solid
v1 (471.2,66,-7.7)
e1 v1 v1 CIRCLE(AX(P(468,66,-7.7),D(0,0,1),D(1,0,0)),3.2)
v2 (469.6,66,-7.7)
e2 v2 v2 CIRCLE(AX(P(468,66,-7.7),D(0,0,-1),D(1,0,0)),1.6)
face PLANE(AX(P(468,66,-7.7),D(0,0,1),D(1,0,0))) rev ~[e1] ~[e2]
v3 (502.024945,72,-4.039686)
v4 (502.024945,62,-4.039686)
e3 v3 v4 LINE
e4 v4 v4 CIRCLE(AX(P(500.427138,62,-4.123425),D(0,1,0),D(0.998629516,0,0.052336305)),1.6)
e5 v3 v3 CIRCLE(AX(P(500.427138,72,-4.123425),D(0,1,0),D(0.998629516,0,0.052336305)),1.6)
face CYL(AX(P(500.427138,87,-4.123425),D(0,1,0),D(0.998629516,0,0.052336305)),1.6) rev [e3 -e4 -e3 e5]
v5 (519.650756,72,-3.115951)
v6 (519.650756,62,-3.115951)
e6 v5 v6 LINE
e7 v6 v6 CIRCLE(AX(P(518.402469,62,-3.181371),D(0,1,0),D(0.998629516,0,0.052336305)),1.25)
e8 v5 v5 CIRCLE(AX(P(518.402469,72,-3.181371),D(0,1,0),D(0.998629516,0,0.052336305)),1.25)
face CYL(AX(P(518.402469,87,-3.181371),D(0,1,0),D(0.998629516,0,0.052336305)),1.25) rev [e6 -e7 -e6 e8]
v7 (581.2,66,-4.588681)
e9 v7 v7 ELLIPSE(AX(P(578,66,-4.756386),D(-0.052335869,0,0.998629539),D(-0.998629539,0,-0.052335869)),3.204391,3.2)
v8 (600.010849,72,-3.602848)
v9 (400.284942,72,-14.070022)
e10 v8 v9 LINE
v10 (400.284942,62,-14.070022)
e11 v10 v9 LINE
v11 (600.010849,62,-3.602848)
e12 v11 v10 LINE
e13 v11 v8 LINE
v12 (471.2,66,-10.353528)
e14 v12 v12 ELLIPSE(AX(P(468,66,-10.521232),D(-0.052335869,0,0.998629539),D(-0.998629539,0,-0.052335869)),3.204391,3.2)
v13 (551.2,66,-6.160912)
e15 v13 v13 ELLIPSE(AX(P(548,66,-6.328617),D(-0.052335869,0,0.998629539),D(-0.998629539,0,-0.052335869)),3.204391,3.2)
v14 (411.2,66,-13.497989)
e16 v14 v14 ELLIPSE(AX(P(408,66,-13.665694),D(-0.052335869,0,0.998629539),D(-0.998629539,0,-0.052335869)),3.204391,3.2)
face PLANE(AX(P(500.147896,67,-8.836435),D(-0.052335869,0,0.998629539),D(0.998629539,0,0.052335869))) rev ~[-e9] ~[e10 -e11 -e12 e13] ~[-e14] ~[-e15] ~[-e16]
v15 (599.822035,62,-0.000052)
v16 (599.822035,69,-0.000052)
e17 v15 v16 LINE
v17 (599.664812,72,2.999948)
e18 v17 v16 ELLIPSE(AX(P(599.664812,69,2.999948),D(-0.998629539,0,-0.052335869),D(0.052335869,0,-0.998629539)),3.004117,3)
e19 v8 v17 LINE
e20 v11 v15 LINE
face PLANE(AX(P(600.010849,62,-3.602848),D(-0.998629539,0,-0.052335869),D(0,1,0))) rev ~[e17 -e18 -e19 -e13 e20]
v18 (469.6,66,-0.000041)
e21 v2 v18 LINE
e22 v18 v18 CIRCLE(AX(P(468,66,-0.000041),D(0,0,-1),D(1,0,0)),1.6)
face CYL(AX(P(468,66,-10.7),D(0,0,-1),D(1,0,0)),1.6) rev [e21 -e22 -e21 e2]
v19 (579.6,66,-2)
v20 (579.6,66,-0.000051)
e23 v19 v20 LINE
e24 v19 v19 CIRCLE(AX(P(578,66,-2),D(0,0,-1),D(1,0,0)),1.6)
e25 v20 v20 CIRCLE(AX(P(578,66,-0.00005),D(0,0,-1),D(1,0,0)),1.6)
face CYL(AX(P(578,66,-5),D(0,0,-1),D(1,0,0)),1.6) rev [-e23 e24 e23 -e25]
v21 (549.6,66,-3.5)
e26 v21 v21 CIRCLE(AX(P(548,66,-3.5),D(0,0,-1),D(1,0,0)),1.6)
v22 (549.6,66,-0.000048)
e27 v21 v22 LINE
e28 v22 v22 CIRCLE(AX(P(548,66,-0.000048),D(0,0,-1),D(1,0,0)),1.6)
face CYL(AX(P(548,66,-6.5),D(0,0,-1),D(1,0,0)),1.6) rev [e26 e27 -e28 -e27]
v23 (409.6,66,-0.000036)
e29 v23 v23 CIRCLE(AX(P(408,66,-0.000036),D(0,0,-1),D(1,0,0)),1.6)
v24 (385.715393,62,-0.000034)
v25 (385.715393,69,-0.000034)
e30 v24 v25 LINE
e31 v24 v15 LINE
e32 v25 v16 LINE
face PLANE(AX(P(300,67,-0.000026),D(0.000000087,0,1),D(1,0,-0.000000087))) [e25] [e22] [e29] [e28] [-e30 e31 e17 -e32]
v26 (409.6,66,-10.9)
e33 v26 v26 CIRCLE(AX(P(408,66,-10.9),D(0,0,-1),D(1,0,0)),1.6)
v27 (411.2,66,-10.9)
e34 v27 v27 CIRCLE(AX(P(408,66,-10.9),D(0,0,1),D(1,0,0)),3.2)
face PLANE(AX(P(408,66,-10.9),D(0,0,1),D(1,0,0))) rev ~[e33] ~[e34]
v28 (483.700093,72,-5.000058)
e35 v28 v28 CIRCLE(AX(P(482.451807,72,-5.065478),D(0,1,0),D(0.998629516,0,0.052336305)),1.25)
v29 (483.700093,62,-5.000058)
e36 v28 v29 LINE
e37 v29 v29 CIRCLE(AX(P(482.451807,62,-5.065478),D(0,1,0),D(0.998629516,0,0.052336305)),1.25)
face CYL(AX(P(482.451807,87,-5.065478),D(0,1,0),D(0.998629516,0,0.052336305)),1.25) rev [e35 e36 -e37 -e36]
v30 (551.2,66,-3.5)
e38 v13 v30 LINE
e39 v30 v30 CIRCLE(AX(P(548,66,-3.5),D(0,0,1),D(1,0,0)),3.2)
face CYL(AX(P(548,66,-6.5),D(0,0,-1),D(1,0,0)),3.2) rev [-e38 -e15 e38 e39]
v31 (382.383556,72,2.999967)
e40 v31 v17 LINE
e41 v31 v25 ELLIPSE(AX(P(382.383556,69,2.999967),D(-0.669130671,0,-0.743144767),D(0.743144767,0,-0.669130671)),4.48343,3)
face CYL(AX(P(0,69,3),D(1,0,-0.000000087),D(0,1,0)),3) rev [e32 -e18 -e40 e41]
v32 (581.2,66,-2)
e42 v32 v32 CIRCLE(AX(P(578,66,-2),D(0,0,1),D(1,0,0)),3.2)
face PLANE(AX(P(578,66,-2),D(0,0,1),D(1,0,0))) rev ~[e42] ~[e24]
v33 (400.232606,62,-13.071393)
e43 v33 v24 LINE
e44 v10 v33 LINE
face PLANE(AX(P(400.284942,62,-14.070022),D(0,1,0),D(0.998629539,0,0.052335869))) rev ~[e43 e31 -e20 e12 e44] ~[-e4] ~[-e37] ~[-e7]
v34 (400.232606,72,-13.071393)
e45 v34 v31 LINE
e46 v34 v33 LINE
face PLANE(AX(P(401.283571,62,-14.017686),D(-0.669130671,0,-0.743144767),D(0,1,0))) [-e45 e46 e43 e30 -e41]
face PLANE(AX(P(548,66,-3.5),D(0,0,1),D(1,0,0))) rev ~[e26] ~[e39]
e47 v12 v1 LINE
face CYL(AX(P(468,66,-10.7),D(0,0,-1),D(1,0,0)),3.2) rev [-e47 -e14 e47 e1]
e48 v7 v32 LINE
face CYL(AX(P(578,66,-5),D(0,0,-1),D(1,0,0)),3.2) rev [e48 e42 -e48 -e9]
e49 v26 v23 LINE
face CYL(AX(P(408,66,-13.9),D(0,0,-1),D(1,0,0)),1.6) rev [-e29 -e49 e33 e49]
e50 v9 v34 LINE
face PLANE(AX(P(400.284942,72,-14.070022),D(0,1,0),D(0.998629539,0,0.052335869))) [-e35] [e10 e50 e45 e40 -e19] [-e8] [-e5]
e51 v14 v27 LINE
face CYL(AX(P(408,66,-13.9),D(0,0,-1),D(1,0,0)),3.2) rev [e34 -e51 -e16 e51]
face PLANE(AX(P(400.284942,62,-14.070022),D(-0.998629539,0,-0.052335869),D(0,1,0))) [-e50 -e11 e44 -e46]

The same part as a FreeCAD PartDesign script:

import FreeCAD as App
import Part
import Sketcher
from FreeCAD import Vector
Q = App.Units.Quantity


def edges_at(feature, points):
    """Names of the edges that pass closest to the given points."""
    edges = feature.Shape.Edges
    near = lambda p: min(range(len(edges)), key=lambda i: edges[i].distToShape(Part.Vertex(*p))[0])
    return sorted({f"Edge{near(p) + 1}" for p in points})

doc = App.newDocument("Part")
body = doc.addObject("PartDesign::Body", "Body")

# Sketch on XZ plane
sketch1 = body.newObject("Sketcher::SketchObject", "Sketch")
sketch1.AttachmentSupport = (doc.getObject("XZ_Plane"), [""])
sketch1.MapMode = "FlatFace"
sketch1.addGeometry(Part.Circle(Vector(418, 0, 0), Vector(0, 0, 1), 1.6), False)
sketch1.addConstraint([
    Sketcher.Constraint("PointOnObject", 0, 3, -1),
    Sketcher.Constraint("Diameter", 0, Q("3.2 mm")),
    Sketcher.Constraint("DistanceX", -1, 1, 0, 3, Q("418 mm")),
])
pad1 = body.newObject("PartDesign::Pad", "Pad")
pad1.Profile = sketch1
pad1.Length = 100
body2 = doc.addObject("PartDesign::Body", "Body001")

# Sketch on XZ plane
sketch2 = body2.newObject("Sketcher::SketchObject", "Sketch001")
sketch2.AttachmentSupport = (doc.getObject("XZ_Plane001"), [""])
sketch2.MapMode = "FlatFace"
sketch2.addGeometry(Part.Circle(Vector(436, 0, 0), Vector(0, 0, 1), 1.25), False)
sketch2.addConstraint([
    Sketcher.Constraint("PointOnObject", 0, 3, -1),
    Sketcher.Constraint("Diameter", 0, Q("2.5 mm")),
    Sketcher.Constraint("DistanceX", -1, 1, 0, 3, Q("436 mm")),
])
pad2 = body2.newObject("PartDesign::Pad", "Pad001")
pad2.Profile = sketch2
pad2.Length = 100
body3 = doc.addObject("PartDesign::Body", "Body002")
body3.AllowCompound = True

# Sketch on XZ plane
sketch3 = body3.newObject("Sketcher::SketchObject", "Sketch002")
sketch3.AttachmentSupport = (doc.getObject("XZ_Plane002"), [""])
sketch3.MapMode = "FlatFace"
sketch3.addGeometry(Part.Circle(Vector(400, 0, 0), Vector(0, 0, 1), 1.25), False)
sketch3.addConstraint([
    Sketcher.Constraint("PointOnObject", 0, 3, -1),
    Sketcher.Constraint("Diameter", 0, Q("2.5 mm")),
    Sketcher.Constraint("DistanceX", -1, 1, 0, 3, Q("400 mm")),
])
pad3 = body3.newObject("PartDesign::Pad", "Pad002")
pad3.Profile = sketch3
pad3.Length = 100
doc.recompute()

boolean = body3.newObject("PartDesign::Boolean", "Boolean")
boolean.Type = "Fuse"
boolean.addObjects([body])
doc.recompute()

boolean2 = body3.newObject("PartDesign::Boolean", "Boolean001")
boolean2.Type = "Fuse"
boolean2.addObjects([body2])
body4 = doc.addObject("PartDesign::Body", "Body003")
body4.AllowCompound = True
doc.recompute()

body3.Placement = App.Placement(Vector(83, 77, -26), App.Rotation(Vector(0, -1, 0), 3.00002))
boolean3 = body4.newObject("PartDesign::Boolean", "Boolean002")
boolean3.Type = "Fuse"
boolean3.addObjects([body3])
body5 = doc.addObject("PartDesign::Body", "Body004")

# Sketch on XY plane
sketch4 = body5.newObject("Sketcher::SketchObject", "Sketch003")
sketch4.AttachmentSupport = (doc.getObject("XY_Plane004"), [""])
sketch4.MapMode = "FlatFace"
sketch4.AttachmentOffset = App.Placement(Vector(0, 0, -35), App.Rotation())
sketch4.addGeometry(Part.Circle(Vector(578, 6, 0), Vector(0, 0, 1), 3.2), False)
sketch4.addConstraint([
    Sketcher.Constraint("Diameter", 0, Q("6.4 mm")),
    Sketcher.Constraint("DistanceX", -1, 1, 0, 3, Q("578 mm")),
    Sketcher.Constraint("DistanceY", -1, 1, 0, 3, Q("6 mm")),
])
pad4 = body5.newObject("PartDesign::Pad", "Pad003")
pad4.Profile = sketch4
pad4.Length = 3
body6 = doc.addObject("PartDesign::Body", "Body005")

# Sketch on XY plane
sketch5 = body6.newObject("Sketcher::SketchObject", "Sketch004")
sketch5.AttachmentSupport = (doc.getObject("XY_Plane005"), [""])
sketch5.MapMode = "FlatFace"
sketch5.AttachmentOffset = App.Placement(Vector(0, 0, -35), App.Rotation())
sketch5.addGeometry(Part.Circle(Vector(578, 6, 0), Vector(0, 0, 1), 1.6), False)
sketch5.addConstraint([
    Sketcher.Constraint("Diameter", 0, Q("3.2 mm")),
    Sketcher.Constraint("DistanceX", -1, 1, 0, 3, Q("578 mm")),
    Sketcher.Constraint("DistanceY", -1, 1, 0, 3, Q("6 mm")),
])
pad5 = body6.newObject("PartDesign::Pad", "Pad004")
pad5.Profile = sketch5
pad5.Length = 30
doc.recompute()

boolean4 = body6.newObject("PartDesign::Boolean", "Boolean003")
boolean4.Type = "Fuse"
boolean4.addObjects([body5])
body7 = doc.addObject("PartDesign::Body", "Body006")
doc.recompute()

body6.Placement = App.Placement(Vector(-170, 50, 21.1), App.Rotation(Vector(0, 0, 1), 0))
boolean5 = body7.newObject("PartDesign::Boolean", "Boolean004")
boolean5.Type = "Fuse"
boolean5.addObjects([body6])
body8 = doc.addObject("PartDesign::Body", "Body007")

# Sketch on XY plane
sketch6 = body8.newObject("Sketcher::SketchObject", "Sketch005")
sketch6.AttachmentSupport = (doc.getObject("XY_Plane007"), [""])
sketch6.MapMode = "FlatFace"
sketch6.AttachmentOffset = App.Placement(Vector(0, 0, -35), App.Rotation())
sketch6.addGeometry(Part.Circle(Vector(578, 6, 0), Vector(0, 0, 1), 3.2), False)
sketch6.addConstraint([
    Sketcher.Constraint("Diameter", 0, Q("6.4 mm")),
    Sketcher.Constraint("DistanceX", -1, 1, 0, 3, Q("578 mm")),
    Sketcher.Constraint("DistanceY", -1, 1, 0, 3, Q("6 mm")),
])
pad6 = body8.newObject("PartDesign::Pad", "Pad005")
pad6.Profile = sketch6
pad6.Length = 3
body9 = doc.addObject("PartDesign::Body", "Body008")

# Sketch on XY plane
sketch7 = body9.newObject("Sketcher::SketchObject", "Sketch006")
sketch7.AttachmentSupport = (doc.getObject("XY_Plane008"), [""])
sketch7.MapMode = "FlatFace"
sketch7.AttachmentOffset = App.Placement(Vector(0, 0, -35), App.Rotation())
sketch7.addGeometry(Part.Circle(Vector(578, 6, 0), Vector(0, 0, 1), 1.6), False)
sketch7.addConstraint([
    Sketcher.Constraint("Diameter", 0, Q("3.2 mm")),
    Sketcher.Constraint("DistanceX", -1, 1, 0, 3, Q("578 mm")),
    Sketcher.Constraint("DistanceY", -1, 1, 0, 3, Q("6 mm")),
])
pad7 = body9.newObject("PartDesign::Pad", "Pad006")
pad7.Profile = sketch7
pad7.Length = 30
doc.recompute()

boolean6 = body9.newObject("PartDesign::Boolean", "Boolean005")
boolean6.Type = "Fuse"
boolean6.addObjects([body8])
body10 = doc.addObject("PartDesign::Body", "Body009")
doc.recompute()

body9.Placement = App.Placement(Vector(-110, 50, 24.3), App.Rotation(Vector(0, 0, 1), 0))
boolean7 = body10.newObject("PartDesign::Boolean", "Boolean006")
boolean7.Type = "Fuse"
boolean7.addObjects([body9])
body11 = doc.addObject("PartDesign::Body", "Body010")

# Sketch on XY plane
sketch8 = body11.newObject("Sketcher::SketchObject", "Sketch007")
sketch8.AttachmentSupport = (doc.getObject("XY_Plane010"), [""])
sketch8.MapMode = "FlatFace"
sketch8.AttachmentOffset = App.Placement(Vector(0, 0, -35), App.Rotation())
sketch8.addGeometry(Part.Circle(Vector(578, 6, 0), Vector(0, 0, 1), 3.2), False)
sketch8.addConstraint([
    Sketcher.Constraint("Diameter", 0, Q("6.4 mm")),
    Sketcher.Constraint("DistanceX", -1, 1, 0, 3, Q("578 mm")),
    Sketcher.Constraint("DistanceY", -1, 1, 0, 3, Q("6 mm")),
])
pad8 = body11.newObject("PartDesign::Pad", "Pad007")
pad8.Profile = sketch8
pad8.Length = 3
body12 = doc.addObject("PartDesign::Body", "Body011")

# Sketch on XY plane
sketch9 = body12.newObject("Sketcher::SketchObject", "Sketch008")
sketch9.AttachmentSupport = (doc.getObject("XY_Plane011"), [""])
sketch9.MapMode = "FlatFace"
sketch9.AttachmentOffset = App.Placement(Vector(0, 0, -35), App.Rotation())
sketch9.addGeometry(Part.Circle(Vector(578, 6, 0), Vector(0, 0, 1), 1.6), False)
sketch9.addConstraint([
    Sketcher.Constraint("Diameter", 0, Q("3.2 mm")),
    Sketcher.Constraint("DistanceX", -1, 1, 0, 3, Q("578 mm")),
    Sketcher.Constraint("DistanceY", -1, 1, 0, 3, Q("6 mm")),
])
pad9 = body12.newObject("PartDesign::Pad", "Pad008")
pad9.Profile = sketch9
pad9.Length = 30
doc.recompute()

boolean8 = body12.newObject("PartDesign::Boolean", "Boolean007")
boolean8.Type = "Fuse"
boolean8.addObjects([body11])
body13 = doc.addObject("PartDesign::Body", "Body012")
doc.recompute()

body12.Placement = App.Placement(Vector(-30, 50, 28.5), App.Rotation(Vector(0, 0, 1), 0))
boolean9 = body13.newObject("PartDesign::Boolean", "Boolean008")
boolean9.Type = "Fuse"
boolean9.addObjects([body12])
body14 = doc.addObject("PartDesign::Body", "Body013")

# Sketch on XY plane
sketch10 = body14.newObject("Sketcher::SketchObject", "Sketch009")
sketch10.AttachmentSupport = (doc.getObject("XY_Plane013"), [""])
sketch10.MapMode = "FlatFace"
sketch10.AttachmentOffset = App.Placement(Vector(0, 0, -35), App.Rotation())
sketch10.addGeometry(Part.Circle(Vector(578, 6, 0), Vector(0, 0, 1), 3.2), False)
sketch10.addConstraint([
    Sketcher.Constraint("Diameter", 0, Q("6.4 mm")),
    Sketcher.Constraint("DistanceX", -1, 1, 0, 3, Q("578 mm")),
    Sketcher.Constraint("DistanceY", -1, 1, 0, 3, Q("6 mm")),
])
pad10 = body14.newObject("PartDesign::Pad", "Pad009")
pad10.Profile = sketch10
pad10.Length = 3
body15 = doc.addObject("PartDesign::Body", "Body014")

# Sketch on XY plane
sketch11 = body15.newObject("Sketcher::SketchObject", "Sketch010")
sketch11.AttachmentSupport = (doc.getObject("XY_Plane014"), [""])
sketch11.MapMode = "FlatFace"
sketch11.AttachmentOffset = App.Placement(Vector(0, 0, -35), App.Rotation())
sketch11.addGeometry(Part.Circle(Vector(578, 6, 0), Vector(0, 0, 1), 1.6), False)
sketch11.addConstraint([
    Sketcher.Constraint("Diameter", 0, Q("3.2 mm")),
    Sketcher.Constraint("DistanceX", -1, 1, 0, 3, Q("578 mm")),
    Sketcher.Constraint("DistanceY", -1, 1, 0, 3, Q("6 mm")),
])
pad11 = body15.newObject("PartDesign::Pad", "Pad010")
pad11.Profile = sketch11
pad11.Length = 30
doc.recompute()

boolean10 = body15.newObject("PartDesign::Boolean", "Boolean009")
boolean10.Type = "Fuse"
boolean10.addObjects([body14])
body16 = doc.addObject("PartDesign::Body", "Body015")
body16.AllowCompound = True
doc.recompute()

body15.Placement = App.Placement(Vector(0, 50, 30), App.Rotation(Vector(0, 0, 1), 0))
boolean11 = body16.newObject("PartDesign::Boolean", "Boolean010")
boolean11.Type = "Fuse"
boolean11.addObjects([body15])
doc.recompute()

boolean12 = body16.newObject("PartDesign::Boolean", "Boolean011")
boolean12.Type = "Fuse"
boolean12.addObjects([body7])
doc.recompute()

boolean13 = body16.newObject("PartDesign::Boolean", "Boolean012")
boolean13.Type = "Fuse"
boolean13.addObjects([body10])
doc.recompute()

boolean14 = body16.newObject("PartDesign::Boolean", "Boolean013")
boolean14.Type = "Fuse"
boolean14.addObjects([body13])
body17 = doc.addObject("PartDesign::Body", "Body016")

# Sketch on XY plane
sketch12 = body17.newObject("Sketcher::SketchObject", "Sketch011")
sketch12.AttachmentSupport = (doc.getObject("XY_Plane016"), [""])
sketch12.MapMode = "FlatFace"
sketch12.addGeometry([
    Part.LineSegment(Vector(0, 10, 0), Vector(0, 0, 0)),
    Part.LineSegment(Vector(0, 0, 0), Vector(600, 0, 0)),
    Part.LineSegment(Vector(600, 0, 0), Vector(600, 10, 0)),
    Part.LineSegment(Vector(600, 10, 0), Vector(0, 10, 0)),
], False)
sketch12.addConstraint([
    Sketcher.Constraint("Coincident", 0, 2, 1, 1),
    Sketcher.Constraint("Coincident", 1, 2, 2, 1),
    Sketcher.Constraint("Coincident", 2, 2, 3, 1),
    Sketcher.Constraint("Coincident", 3, 2, 0, 1),
    Sketcher.Constraint("Vertical", 0),
    Sketcher.Constraint("Horizontal", 1),
    Sketcher.Constraint("Vertical", 2),
    Sketcher.Constraint("Horizontal", 3),
    Sketcher.Constraint("Coincident", 0, 2, -1, 1),
    Sketcher.Constraint("DistanceX", 1, 1, 1, 2, Q("600 mm")),
    Sketcher.Constraint("DistanceY", 0, 2, 0, 1, Q("10 mm")),
])
pad12 = body17.newObject("PartDesign::Pad", "Pad011")
pad12.Profile = sketch12
pad12.Length = 20
body18 = doc.addObject("PartDesign::Body", "Body017")
doc.recompute()

body17.Placement = App.Placement(Vector(0, 0, 0), App.Rotation(Vector(0, 1, 0), 3))
boolean15 = body18.newObject("PartDesign::Boolean", "Boolean014")
boolean15.Type = "Fuse"
boolean15.addObjects([body17])
body19 = doc.addObject("PartDesign::Body", "Body018")

# Sketch on XY plane
sketch13 = body19.newObject("Sketcher::SketchObject", "Sketch012")
sketch13.AttachmentSupport = (doc.getObject("XY_Plane018"), [""])
sketch13.MapMode = "FlatFace"
sketch13.addGeometry([
    Part.LineSegment(Vector(0, 10, 0), Vector(0, 0, 0)),
    Part.LineSegment(Vector(0, 0, 0), Vector(600, 0, 0)),
    Part.LineSegment(Vector(600, 0, 0), Vector(600, 10, 0)),
    Part.LineSegment(Vector(600, 10, 0), Vector(0, 10, 0)),
], False)
sketch13.addConstraint([
    Sketcher.Constraint("Coincident", 0, 2, 1, 1),
    Sketcher.Constraint("Coincident", 1, 2, 2, 1),
    Sketcher.Constraint("Coincident", 2, 2, 3, 1),
    Sketcher.Constraint("Coincident", 3, 2, 0, 1),
    Sketcher.Constraint("Vertical", 0),
    Sketcher.Constraint("Horizontal", 1),
    Sketcher.Constraint("Vertical", 2),
    Sketcher.Constraint("Horizontal", 3),
    Sketcher.Constraint("Coincident", 0, 2, -1, 1),
    Sketcher.Constraint("DistanceX", 1, 1, 1, 2, Q("600 mm")),
    Sketcher.Constraint("DistanceY", 0, 2, 0, 1, Q("10 mm")),
])
pad13 = body19.newObject("PartDesign::Pad", "Pad012")
pad13.Profile = sketch13
pad13.Length = 20
body20 = doc.addObject("PartDesign::Body", "Body019")
body20.AllowCompound = True
doc.recompute()

body19.Placement = App.Placement(Vector(0, 52, 0), App.Rotation(Vector(0, 1, 0), 3))
boolean16 = body20.newObject("PartDesign::Boolean", "Boolean015")
boolean16.Type = "Fuse"
boolean16.addObjects([body19])
doc.recompute()

boolean17 = body20.newObject("PartDesign::Boolean", "Boolean016")
boolean17.Type = "Fuse"
boolean17.addObjects([body18])
doc.recompute()

fillet = body20.newObject("PartDesign::Fillet", "Fillet")
fillet.Base = (boolean17, edges_at(boolean17, [
    (300.636, 62, 4.272),
    (299.589, 62, -15.701),
    (299.589, 0, -15.701),
    (300.636, 0, 4.272),
]))
fillet.Radius = 3
body21 = doc.addObject("PartDesign::Body", "Body020")

# Sketch on XY plane
sketch14 = body21.newObject("Sketcher::SketchObject", "Sketch013")
sketch14.AttachmentSupport = (doc.getObject("XY_Plane020"), [""])
sketch14.MapMode = "FlatFace"
sketch14.addGeometry([
    Part.LineSegment(Vector(0, 10, 0), Vector(0, 0, 0)),
    Part.LineSegment(Vector(0, 0, 0), Vector(14, 0, 0)),
    Part.LineSegment(Vector(14, 0, 0), Vector(14, 10, 0)),
    Part.LineSegment(Vector(14, 10, 0), Vector(0, 10, 0)),
], False)
sketch14.addConstraint([
    Sketcher.Constraint("Coincident", 0, 2, 1, 1),
    Sketcher.Constraint("Coincident", 1, 2, 2, 1),
    Sketcher.Constraint("Coincident", 2, 2, 3, 1),
    Sketcher.Constraint("Coincident", 3, 2, 0, 1),
    Sketcher.Constraint("Vertical", 0),
    Sketcher.Constraint("Horizontal", 1),
    Sketcher.Constraint("Vertical", 2),
    Sketcher.Constraint("Horizontal", 3),
    Sketcher.Constraint("Coincident", 0, 2, -1, 1),
    Sketcher.Constraint("DistanceX", 1, 1, 1, 2, Q("14 mm")),
    Sketcher.Constraint("DistanceY", 0, 2, 0, 1, Q("10 mm")),
])
pad14 = body21.newObject("PartDesign::Pad", "Pad013")
pad14.Profile = sketch14
pad14.Length = 27
body22 = doc.addObject("PartDesign::Body", "Body021")
doc.recompute()

body21.Placement = App.Placement(Vector(400, 0, -35), App.Rotation(Vector(0, -1, 0), 45))
boolean18 = body22.newObject("PartDesign::Boolean", "Boolean017")
boolean18.Type = "Fuse"
boolean18.addObjects([body21])
body23 = doc.addObject("PartDesign::Body", "Body022")

# Sketch on XY plane
sketch15 = body23.newObject("Sketcher::SketchObject", "Sketch014")
sketch15.AttachmentSupport = (doc.getObject("XY_Plane022"), [""])
sketch15.MapMode = "FlatFace"
sketch15.AttachmentOffset = App.Placement(Vector(0, 0, -35), App.Rotation())
sketch15.addGeometry([
    Part.LineSegment(Vector(399, 10, 0), Vector(399, 0, 0)),
    Part.LineSegment(Vector(399, 0, 0), Vector(599, 0, 0)),
    Part.LineSegment(Vector(599, 0, 0), Vector(599, 10, 0)),
    Part.LineSegment(Vector(599, 10, 0), Vector(399, 10, 0)),
], False)
sketch15.addConstraint([
    Sketcher.Constraint("Coincident", 0, 2, 1, 1),
    Sketcher.Constraint("Coincident", 1, 2, 2, 1),
    Sketcher.Constraint("Coincident", 2, 2, 3, 1),
    Sketcher.Constraint("Coincident", 3, 2, 0, 1),
    Sketcher.Constraint("Vertical", 0),
    Sketcher.Constraint("Horizontal", 1),
    Sketcher.Constraint("Vertical", 2),
    Sketcher.Constraint("Horizontal", 3),
    Sketcher.Constraint("PointOnObject", 0, 2, -1),
    Sketcher.Constraint("DistanceX", 1, 1, 1, 2, Q("200 mm")),
    Sketcher.Constraint("DistanceY", 0, 2, 0, 1, Q("10 mm")),
    Sketcher.Constraint("DistanceX", -1, 1, 0, 2, Q("399 mm")),
])
pad15 = body23.newObject("PartDesign::Pad", "Pad014")
pad15.Profile = sketch15
pad15.Length = 17
doc.recompute()

boolean19 = body23.newObject("PartDesign::Boolean", "Boolean018")
boolean19.Type = "Fuse"
boolean19.addObjects([body22])
body24 = doc.addObject("PartDesign::Body", "Body023")
doc.recompute()

body23.Placement = App.Placement(Vector(0, 52, 0), App.Rotation(Vector(0, 0, 1), 0))
boolean20 = body24.newObject("PartDesign::Boolean", "Boolean019")
boolean20.Type = "Fuse"
boolean20.addObjects([body23])
doc.recompute()

boolean21 = body24.newObject("PartDesign::Boolean", "Boolean020")
boolean21.Type = "Cut"
boolean21.addObjects([body20])
body25 = doc.addObject("PartDesign::Body", "Body024")
doc.recompute()

body24.Placement = App.Placement(Vector(0, 0, 0), App.Rotation(Vector(0, -1, 0), 2.999995))
boolean22 = body25.newObject("PartDesign::Boolean", "Boolean021")
boolean22.Type = "Fuse"
boolean22.addObjects([body24])
doc.recompute()

boolean23 = body25.newObject("PartDesign::Boolean", "Boolean022")
boolean23.Type = "Cut"
boolean23.addObjects([body16])
doc.recompute()

boolean24 = body25.newObject("PartDesign::Boolean", "Boolean023")
boolean24.Type = "Cut"
boolean24.addObjects([body4])
body26 = doc.addObject("PartDesign::Body", "Body025")
doc.recompute()

body25.Placement = App.Placement(Vector(0, 10, 0), App.Rotation(Vector(0, 0, 1), 0))
boolean25 = body26.newObject("PartDesign::Boolean", "Boolean024")
boolean25.Type = "Fuse"
boolean25.addObjects([body25])

doc.recompute()
